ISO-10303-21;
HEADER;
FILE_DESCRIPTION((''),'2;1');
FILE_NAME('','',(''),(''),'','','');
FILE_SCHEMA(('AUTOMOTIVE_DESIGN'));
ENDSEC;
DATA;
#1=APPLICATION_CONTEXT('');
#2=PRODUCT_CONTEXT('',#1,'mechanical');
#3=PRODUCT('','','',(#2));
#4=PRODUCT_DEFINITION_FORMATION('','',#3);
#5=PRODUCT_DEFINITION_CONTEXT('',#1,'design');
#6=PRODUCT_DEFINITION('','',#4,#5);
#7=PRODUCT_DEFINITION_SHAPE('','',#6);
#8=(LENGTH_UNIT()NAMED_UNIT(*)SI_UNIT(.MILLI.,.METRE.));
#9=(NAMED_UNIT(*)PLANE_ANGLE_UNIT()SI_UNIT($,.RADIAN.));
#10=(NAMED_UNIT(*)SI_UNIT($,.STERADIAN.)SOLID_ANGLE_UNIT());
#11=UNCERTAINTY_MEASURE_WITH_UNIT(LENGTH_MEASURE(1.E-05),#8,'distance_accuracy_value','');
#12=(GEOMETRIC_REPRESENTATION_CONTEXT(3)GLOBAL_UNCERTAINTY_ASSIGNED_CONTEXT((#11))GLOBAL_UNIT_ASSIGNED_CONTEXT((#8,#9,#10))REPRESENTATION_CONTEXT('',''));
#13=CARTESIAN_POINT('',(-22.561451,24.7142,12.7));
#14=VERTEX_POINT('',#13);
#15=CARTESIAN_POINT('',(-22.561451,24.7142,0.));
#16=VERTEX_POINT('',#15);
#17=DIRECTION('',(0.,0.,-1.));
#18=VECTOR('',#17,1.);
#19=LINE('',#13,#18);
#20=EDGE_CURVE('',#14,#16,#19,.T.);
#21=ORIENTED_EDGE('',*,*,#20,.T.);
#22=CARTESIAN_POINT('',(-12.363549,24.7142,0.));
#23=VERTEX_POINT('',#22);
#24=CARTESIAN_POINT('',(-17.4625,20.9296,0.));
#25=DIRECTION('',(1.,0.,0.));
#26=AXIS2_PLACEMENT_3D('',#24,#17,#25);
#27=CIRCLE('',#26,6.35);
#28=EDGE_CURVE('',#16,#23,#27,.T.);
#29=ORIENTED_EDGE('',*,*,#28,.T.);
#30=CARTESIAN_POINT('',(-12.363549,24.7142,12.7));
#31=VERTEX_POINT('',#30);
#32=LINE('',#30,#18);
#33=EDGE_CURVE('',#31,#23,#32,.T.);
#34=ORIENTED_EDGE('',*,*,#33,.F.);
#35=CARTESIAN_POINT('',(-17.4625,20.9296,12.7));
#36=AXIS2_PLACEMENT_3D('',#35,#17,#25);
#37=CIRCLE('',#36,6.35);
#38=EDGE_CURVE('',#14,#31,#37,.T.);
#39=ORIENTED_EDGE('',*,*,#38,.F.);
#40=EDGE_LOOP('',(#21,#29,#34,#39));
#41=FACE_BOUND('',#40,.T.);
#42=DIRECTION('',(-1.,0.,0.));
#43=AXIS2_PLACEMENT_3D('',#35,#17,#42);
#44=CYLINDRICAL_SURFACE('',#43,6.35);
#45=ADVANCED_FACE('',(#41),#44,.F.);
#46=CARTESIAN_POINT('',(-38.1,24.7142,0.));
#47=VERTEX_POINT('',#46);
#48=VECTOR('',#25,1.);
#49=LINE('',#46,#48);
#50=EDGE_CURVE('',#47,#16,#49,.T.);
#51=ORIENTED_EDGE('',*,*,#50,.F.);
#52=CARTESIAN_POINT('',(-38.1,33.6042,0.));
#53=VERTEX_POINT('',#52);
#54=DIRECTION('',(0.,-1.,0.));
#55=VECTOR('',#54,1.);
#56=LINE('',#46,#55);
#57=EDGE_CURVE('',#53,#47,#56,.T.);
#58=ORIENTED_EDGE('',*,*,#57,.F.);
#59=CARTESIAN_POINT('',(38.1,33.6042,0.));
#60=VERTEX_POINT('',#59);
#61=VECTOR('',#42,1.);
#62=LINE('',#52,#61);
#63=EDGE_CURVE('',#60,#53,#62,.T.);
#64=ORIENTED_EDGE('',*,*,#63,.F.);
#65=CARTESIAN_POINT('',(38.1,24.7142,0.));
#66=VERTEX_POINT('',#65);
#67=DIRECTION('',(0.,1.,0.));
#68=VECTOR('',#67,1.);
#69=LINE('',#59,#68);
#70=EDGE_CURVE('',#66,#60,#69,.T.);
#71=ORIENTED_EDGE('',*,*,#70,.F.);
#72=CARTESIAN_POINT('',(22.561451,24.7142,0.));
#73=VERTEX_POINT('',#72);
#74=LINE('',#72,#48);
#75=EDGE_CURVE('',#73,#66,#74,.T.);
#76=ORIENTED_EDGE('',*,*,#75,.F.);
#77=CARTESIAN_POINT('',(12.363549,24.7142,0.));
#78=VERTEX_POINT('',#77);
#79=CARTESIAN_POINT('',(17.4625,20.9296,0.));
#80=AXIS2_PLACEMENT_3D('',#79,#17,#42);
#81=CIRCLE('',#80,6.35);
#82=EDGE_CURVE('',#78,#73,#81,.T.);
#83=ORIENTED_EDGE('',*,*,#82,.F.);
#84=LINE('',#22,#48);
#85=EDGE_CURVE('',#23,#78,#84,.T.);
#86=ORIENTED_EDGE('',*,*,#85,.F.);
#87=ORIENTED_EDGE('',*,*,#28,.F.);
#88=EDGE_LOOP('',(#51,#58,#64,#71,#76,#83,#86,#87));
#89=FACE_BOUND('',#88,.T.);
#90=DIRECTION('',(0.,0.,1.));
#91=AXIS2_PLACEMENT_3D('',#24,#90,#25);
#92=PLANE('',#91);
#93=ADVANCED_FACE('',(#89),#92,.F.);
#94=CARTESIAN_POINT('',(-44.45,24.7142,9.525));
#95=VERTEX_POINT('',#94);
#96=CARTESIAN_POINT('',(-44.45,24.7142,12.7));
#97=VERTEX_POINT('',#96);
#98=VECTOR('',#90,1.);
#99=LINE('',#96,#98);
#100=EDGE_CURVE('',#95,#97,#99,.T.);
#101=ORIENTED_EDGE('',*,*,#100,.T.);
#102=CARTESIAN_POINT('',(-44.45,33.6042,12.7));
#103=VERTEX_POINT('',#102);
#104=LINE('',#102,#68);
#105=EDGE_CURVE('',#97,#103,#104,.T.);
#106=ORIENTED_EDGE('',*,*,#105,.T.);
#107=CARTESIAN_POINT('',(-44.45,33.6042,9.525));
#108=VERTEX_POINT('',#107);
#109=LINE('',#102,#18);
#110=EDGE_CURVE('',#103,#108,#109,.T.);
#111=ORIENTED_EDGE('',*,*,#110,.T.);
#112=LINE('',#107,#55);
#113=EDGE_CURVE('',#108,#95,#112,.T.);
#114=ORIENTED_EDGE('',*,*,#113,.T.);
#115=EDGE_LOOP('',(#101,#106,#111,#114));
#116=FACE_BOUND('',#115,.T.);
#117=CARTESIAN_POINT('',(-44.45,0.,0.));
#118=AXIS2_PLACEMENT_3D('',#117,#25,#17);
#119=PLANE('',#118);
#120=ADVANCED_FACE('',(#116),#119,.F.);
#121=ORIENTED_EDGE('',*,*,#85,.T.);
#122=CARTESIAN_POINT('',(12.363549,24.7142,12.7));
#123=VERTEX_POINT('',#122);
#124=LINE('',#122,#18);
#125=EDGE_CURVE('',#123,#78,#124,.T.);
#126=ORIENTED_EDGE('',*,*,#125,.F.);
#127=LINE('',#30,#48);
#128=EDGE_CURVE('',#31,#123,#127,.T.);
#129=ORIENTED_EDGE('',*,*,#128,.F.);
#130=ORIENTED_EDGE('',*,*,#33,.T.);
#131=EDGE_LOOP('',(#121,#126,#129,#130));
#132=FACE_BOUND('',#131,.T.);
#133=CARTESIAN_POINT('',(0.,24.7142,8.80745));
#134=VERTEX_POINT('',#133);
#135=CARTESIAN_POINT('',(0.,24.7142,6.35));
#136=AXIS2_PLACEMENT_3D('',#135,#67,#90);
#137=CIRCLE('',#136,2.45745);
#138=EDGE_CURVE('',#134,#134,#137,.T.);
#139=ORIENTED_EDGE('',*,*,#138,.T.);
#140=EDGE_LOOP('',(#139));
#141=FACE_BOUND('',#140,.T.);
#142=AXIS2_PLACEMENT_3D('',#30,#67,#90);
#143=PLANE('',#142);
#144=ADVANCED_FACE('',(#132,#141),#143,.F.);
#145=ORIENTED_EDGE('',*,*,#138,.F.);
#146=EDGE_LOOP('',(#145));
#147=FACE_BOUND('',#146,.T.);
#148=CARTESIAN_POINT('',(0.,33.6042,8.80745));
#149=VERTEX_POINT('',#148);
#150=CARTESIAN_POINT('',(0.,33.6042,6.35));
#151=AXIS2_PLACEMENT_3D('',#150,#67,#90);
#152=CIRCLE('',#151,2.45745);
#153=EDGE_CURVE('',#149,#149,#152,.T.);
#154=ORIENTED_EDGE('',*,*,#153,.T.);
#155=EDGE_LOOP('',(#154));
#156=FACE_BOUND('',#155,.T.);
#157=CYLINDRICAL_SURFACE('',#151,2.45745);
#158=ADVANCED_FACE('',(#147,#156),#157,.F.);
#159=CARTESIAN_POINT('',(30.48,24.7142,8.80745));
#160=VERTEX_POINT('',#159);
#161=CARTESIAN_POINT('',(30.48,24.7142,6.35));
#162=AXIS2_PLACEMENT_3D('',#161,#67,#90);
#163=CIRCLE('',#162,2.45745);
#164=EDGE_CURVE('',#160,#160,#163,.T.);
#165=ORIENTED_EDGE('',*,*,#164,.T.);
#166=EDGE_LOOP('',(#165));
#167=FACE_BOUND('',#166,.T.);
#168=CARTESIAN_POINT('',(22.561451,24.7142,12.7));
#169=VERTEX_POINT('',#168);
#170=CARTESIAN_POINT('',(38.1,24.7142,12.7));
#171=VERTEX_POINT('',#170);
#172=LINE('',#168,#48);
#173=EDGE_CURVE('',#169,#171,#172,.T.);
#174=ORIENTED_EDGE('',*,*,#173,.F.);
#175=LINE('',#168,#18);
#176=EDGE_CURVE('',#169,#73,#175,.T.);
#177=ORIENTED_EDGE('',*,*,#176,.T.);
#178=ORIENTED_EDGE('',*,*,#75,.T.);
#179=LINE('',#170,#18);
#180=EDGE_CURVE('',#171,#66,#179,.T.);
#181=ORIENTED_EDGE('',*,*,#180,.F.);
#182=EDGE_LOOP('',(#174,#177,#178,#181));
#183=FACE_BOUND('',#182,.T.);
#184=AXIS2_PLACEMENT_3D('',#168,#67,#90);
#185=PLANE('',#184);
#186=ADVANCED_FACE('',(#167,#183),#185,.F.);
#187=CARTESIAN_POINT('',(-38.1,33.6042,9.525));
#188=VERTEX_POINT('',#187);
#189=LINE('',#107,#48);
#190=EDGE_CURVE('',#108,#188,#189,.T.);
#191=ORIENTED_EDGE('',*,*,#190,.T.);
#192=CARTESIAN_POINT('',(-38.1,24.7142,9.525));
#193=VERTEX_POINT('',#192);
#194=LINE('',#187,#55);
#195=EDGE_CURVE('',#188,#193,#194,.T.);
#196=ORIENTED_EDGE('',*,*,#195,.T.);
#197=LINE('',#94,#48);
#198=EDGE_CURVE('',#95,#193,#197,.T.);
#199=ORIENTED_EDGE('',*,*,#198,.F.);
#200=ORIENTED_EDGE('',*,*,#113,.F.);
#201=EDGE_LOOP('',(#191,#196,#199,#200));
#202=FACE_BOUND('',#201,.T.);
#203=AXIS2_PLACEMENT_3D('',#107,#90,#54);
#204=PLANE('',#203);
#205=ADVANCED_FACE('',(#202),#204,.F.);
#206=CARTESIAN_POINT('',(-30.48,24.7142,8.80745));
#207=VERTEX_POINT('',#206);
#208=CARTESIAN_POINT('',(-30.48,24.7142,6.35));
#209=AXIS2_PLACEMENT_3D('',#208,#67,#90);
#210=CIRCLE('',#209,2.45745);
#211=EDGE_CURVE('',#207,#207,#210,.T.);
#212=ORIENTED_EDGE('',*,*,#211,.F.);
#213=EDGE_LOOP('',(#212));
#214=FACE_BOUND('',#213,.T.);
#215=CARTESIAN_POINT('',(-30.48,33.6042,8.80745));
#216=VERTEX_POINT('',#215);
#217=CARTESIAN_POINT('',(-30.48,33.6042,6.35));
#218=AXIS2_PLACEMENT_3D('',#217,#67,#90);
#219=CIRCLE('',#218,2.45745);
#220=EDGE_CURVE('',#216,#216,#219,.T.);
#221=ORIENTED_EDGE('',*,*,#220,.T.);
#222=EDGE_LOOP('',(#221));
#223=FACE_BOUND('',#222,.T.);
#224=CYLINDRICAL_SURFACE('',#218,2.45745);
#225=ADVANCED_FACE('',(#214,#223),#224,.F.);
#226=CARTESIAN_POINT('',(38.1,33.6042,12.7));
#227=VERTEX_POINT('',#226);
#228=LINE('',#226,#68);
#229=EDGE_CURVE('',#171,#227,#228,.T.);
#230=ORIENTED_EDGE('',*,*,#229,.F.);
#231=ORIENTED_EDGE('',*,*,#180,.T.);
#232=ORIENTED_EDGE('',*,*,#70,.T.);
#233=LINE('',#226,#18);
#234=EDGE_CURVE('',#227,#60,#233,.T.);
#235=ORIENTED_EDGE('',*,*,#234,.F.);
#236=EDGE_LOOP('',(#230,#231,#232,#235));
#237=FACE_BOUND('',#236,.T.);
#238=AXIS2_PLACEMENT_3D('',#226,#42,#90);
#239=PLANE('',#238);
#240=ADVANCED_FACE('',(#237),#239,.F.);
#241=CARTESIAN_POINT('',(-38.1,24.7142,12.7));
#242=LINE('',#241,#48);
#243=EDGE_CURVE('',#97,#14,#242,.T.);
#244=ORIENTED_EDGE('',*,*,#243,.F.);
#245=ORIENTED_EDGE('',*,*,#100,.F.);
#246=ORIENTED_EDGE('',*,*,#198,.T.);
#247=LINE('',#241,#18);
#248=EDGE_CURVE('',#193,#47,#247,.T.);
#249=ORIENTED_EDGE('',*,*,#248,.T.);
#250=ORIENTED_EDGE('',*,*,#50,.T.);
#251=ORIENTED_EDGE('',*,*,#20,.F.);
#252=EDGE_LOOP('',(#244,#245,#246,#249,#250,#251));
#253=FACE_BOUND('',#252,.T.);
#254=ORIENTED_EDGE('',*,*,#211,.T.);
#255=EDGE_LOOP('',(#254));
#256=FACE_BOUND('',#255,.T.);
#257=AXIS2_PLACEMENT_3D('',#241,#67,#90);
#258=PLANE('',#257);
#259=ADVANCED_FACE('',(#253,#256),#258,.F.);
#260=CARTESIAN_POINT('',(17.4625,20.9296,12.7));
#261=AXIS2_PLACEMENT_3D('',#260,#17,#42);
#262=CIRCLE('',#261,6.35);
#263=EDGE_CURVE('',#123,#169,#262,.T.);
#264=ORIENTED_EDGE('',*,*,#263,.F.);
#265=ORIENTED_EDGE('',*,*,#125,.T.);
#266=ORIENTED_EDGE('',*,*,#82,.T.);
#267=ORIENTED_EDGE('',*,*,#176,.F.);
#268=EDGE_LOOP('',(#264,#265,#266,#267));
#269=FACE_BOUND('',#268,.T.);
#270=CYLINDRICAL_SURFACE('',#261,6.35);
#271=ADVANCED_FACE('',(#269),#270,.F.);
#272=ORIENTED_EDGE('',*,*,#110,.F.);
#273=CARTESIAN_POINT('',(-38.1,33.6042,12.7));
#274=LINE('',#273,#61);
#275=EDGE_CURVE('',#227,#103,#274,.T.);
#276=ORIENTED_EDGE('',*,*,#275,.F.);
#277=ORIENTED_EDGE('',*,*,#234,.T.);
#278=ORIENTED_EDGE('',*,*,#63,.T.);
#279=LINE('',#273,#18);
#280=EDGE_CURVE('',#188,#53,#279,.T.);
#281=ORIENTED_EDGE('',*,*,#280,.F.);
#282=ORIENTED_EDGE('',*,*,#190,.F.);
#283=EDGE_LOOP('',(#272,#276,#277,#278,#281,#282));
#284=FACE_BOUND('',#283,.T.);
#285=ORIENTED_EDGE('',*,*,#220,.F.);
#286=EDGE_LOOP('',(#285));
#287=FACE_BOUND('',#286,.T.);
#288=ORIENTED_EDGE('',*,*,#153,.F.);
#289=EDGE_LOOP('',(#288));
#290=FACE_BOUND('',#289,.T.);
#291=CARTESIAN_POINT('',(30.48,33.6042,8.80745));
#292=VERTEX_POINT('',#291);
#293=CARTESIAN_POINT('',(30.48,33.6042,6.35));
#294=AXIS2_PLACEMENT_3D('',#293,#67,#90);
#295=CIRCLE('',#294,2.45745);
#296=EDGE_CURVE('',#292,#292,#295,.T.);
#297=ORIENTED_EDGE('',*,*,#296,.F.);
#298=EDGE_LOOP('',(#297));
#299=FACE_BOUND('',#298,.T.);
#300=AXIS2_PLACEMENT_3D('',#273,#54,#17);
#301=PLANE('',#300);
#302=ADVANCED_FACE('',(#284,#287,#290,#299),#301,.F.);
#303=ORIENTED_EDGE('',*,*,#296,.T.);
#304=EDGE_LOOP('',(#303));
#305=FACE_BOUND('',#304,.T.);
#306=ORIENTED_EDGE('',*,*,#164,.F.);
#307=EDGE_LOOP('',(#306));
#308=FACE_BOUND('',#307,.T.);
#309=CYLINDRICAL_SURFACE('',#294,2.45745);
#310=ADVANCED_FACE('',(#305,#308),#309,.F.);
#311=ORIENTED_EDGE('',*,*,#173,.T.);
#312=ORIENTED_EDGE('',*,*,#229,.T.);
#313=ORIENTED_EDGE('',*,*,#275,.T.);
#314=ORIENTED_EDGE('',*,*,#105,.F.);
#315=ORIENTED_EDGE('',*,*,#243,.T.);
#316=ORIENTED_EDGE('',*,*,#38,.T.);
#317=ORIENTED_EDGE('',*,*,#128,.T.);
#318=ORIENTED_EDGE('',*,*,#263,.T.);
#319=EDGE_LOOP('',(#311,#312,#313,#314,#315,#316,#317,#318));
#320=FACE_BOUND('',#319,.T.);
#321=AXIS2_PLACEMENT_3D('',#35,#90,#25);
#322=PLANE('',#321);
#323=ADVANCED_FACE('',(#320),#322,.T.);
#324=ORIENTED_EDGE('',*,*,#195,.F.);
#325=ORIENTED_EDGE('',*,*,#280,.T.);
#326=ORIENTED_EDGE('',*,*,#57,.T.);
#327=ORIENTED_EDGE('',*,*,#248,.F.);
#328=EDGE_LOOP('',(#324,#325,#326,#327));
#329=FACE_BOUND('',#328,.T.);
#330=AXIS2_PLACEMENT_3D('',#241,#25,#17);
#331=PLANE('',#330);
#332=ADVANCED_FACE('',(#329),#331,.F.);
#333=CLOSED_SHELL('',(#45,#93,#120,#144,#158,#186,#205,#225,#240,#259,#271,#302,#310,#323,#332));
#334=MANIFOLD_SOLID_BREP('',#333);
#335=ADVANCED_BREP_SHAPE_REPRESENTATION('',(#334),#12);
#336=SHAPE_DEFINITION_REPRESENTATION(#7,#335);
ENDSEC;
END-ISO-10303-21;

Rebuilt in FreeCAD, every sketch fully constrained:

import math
import FreeCAD as App
import Part
import Sketcher
Q = App.Units.Quantity


def add_polygon(sketch, points):
    """Adds a closed chain of lines whose ends are joined by coincident constraints."""
    first, n = sketch.GeometryCount, len(points)
    for a, b in zip(points, points[1:] + points[:1]):
        sketch.addGeometry(Part.LineSegment(App.Vector(*a, 0), App.Vector(*b, 0)), False)
    for i in range(n):
        sketch.addConstraint(Sketcher.Constraint("Coincident", first + i, 2, first + (i + 1) % n, 1))

doc = App.newDocument("Part")
body = doc.addObject("PartDesign::Body", "Body")

sketch1 = body.newObject("Sketcher::SketchObject", "Sketch")
sketch1.AttachmentSupport = (doc.getObject("XY_Plane"), [""])
sketch1.MapMode = "FlatFace"
sketch1.addGeometry([
    Part.LineSegment(App.Vector(38, 25, 0), App.Vector(38, 34, 0)),
    Part.LineSegment(App.Vector(38, 34, 0), App.Vector(-38, 34, 0)),
    Part.LineSegment(App.Vector(-38, 34, 0), App.Vector(-38, 25, 0)),
    Part.LineSegment(App.Vector(-38, 25, 0), App.Vector(-23, 25, 0)),
    Part.ArcOfCircle(Part.Circle(App.Vector(-17, 21, 0), App.Vector(0, 0, 1), 6), math.radians(37), math.radians(143)),
    Part.LineSegment(App.Vector(-12, 25, 0), App.Vector(12, 25, 0)),
    Part.ArcOfCircle(Part.Circle(App.Vector(17, 21, 0), App.Vector(0, 0, 1), 6), math.radians(37), math.radians(143)),
    Part.LineSegment(App.Vector(23, 25, 0), App.Vector(38, 25, 0)),
], False)
sketch1.addConstraint([
    Sketcher.Constraint("Coincident", 0, 2, 1, 1),
    Sketcher.Constraint("Coincident", 1, 2, 2, 1),
    Sketcher.Constraint("Coincident", 2, 2, 3, 1),
    Sketcher.Constraint("Coincident", 3, 2, 4, 2),
    Sketcher.Constraint("Coincident", 4, 1, 5, 1),
    Sketcher.Constraint("Coincident", 5, 2, 6, 2),
    Sketcher.Constraint("Coincident", 6, 1, 7, 1),
    Sketcher.Constraint("Coincident", 7, 2, 0, 1),
    Sketcher.Constraint("Vertical", 0),
    Sketcher.Constraint("Horizontal", 1),
    Sketcher.Constraint("Vertical", 2),
    Sketcher.Constraint("Horizontal", 3),
    Sketcher.Constraint("Horizontal", 5),
    Sketcher.Constraint("Horizontal", 7),
    Sketcher.Constraint("Equal", 4, 6),
    Sketcher.Constraint("Symmetric", 4, 3, 6, 3, -2),
    Sketcher.Constraint("Symmetric", 2, 2, 7, 2, -2),
    Sketcher.Constraint("Horizontal", 3, 2, 4, 1),
    Sketcher.Constraint("DistanceX", 1, 2, 1, 1, Q("3 in")),
    Sketcher.Constraint("Radius", 4, Q("0.25 in")),
    Sketcher.Constraint("DistanceY", 0, 1, 0, 2, Q("0.35 in")),
    Sketcher.Constraint("DistanceX", 4, 3, -1, 1, Q("0.6875 in")),
    Sketcher.Constraint("DistanceY", -1, 1, 4, 3, Q("0.824 in")),
    Sketcher.Constraint("DistanceY", -1, 1, 0, 2, Q("1.323 in")),
])
pad1 = body.newObject("PartDesign::Pad", "Pad")
pad1.Profile = sketch1
pad1.Length = Q("0.5 in")

sketch2 = body.newObject("Sketcher::SketchObject", "Sketch001")
sketch2.AttachmentSupport = (doc.getObject("YZ_Plane"), [""])
sketch2.MapMode = "FlatFace"
sketch2.AttachmentOffset = App.Placement(App.Vector(0, 0, -1.5 * 25.4), App.Rotation())
add_polygon(sketch2, [(33.6, 9.5), (24.7, 9.5), (24.7, 12.7), (33.6, 12.7)])
sketch2.addConstraint([
    Sketcher.Constraint("Horizontal", 0),
    Sketcher.Constraint("Vertical", 1),
    Sketcher.Constraint("Horizontal", 2),
    Sketcher.Constraint("Vertical", 3),
    Sketcher.Constraint("DistanceX", 0, 2, 0, 1, Q("0.35 in")),
    Sketcher.Constraint("DistanceY", -1, 1, 1, 2, Q("0.5 in")),
    Sketcher.Constraint("DistanceY", 1, 1, 1, 2, Q("0.125 in")),
    Sketcher.Constraint("DistanceX", -1, 1, 0, 2, Q("0.973 in")),
])
pad2 = body.newObject("PartDesign::Pad", "Pad001")
pad2.Profile = sketch2
pad2.Length = Q("0.25 in")
pad2.Reversed = True

sketch3 = body.newObject("Sketcher::SketchObject", "Sketch002")
sketch3.AttachmentSupport = (doc.getObject("XZ_Plane"), [""])
sketch3.MapMode = "FlatFace"
sketch3.AttachmentOffset = App.Placement(App.Vector(0, 0, -1.323 * 25.4), App.Rotation())
sketch3.addGeometry([
    Part.Circle(App.Vector(-30.5, 6.3, 0), App.Vector(0, 0, 1), 2.5),
    Part.Circle(App.Vector(0, 6.3, 0), App.Vector(0, 0, 1), 2.5),
    Part.Circle(App.Vector(30.5, 6.3, 0), App.Vector(0, 0, 1), 2.5),
], False)
sketch3.addConstraint([
    Sketcher.Constraint("Equal", 0, 1),
    Sketcher.Constraint("Equal", 1, 2),
    Sketcher.Constraint("Symmetric", 0, 3, 2, 3, -2),
    Sketcher.Constraint("PointOnObject", 1, 3, -2),
    Sketcher.Constraint("Horizontal", 0, 3, 1, 3),
    Sketcher.Constraint("Diameter", 0, Q("0.1935 in")),
    Sketcher.Constraint("DistanceX", 0, 3, -1, 1, Q("1.2 in")),
    Sketcher.Constraint("DistanceY", -1, 1, 0, 3, Q("0.25 in")),
])
doc.recompute()
hole = body.newObject("PartDesign::Hole", "Hole")
hole.Profile = sketch3
hole.ThreadType = "None"
hole.Diameter = Q("0.1935 in")
hole.DepthType = "ThroughAll"
hole.Reversed = True

doc.recompute()
